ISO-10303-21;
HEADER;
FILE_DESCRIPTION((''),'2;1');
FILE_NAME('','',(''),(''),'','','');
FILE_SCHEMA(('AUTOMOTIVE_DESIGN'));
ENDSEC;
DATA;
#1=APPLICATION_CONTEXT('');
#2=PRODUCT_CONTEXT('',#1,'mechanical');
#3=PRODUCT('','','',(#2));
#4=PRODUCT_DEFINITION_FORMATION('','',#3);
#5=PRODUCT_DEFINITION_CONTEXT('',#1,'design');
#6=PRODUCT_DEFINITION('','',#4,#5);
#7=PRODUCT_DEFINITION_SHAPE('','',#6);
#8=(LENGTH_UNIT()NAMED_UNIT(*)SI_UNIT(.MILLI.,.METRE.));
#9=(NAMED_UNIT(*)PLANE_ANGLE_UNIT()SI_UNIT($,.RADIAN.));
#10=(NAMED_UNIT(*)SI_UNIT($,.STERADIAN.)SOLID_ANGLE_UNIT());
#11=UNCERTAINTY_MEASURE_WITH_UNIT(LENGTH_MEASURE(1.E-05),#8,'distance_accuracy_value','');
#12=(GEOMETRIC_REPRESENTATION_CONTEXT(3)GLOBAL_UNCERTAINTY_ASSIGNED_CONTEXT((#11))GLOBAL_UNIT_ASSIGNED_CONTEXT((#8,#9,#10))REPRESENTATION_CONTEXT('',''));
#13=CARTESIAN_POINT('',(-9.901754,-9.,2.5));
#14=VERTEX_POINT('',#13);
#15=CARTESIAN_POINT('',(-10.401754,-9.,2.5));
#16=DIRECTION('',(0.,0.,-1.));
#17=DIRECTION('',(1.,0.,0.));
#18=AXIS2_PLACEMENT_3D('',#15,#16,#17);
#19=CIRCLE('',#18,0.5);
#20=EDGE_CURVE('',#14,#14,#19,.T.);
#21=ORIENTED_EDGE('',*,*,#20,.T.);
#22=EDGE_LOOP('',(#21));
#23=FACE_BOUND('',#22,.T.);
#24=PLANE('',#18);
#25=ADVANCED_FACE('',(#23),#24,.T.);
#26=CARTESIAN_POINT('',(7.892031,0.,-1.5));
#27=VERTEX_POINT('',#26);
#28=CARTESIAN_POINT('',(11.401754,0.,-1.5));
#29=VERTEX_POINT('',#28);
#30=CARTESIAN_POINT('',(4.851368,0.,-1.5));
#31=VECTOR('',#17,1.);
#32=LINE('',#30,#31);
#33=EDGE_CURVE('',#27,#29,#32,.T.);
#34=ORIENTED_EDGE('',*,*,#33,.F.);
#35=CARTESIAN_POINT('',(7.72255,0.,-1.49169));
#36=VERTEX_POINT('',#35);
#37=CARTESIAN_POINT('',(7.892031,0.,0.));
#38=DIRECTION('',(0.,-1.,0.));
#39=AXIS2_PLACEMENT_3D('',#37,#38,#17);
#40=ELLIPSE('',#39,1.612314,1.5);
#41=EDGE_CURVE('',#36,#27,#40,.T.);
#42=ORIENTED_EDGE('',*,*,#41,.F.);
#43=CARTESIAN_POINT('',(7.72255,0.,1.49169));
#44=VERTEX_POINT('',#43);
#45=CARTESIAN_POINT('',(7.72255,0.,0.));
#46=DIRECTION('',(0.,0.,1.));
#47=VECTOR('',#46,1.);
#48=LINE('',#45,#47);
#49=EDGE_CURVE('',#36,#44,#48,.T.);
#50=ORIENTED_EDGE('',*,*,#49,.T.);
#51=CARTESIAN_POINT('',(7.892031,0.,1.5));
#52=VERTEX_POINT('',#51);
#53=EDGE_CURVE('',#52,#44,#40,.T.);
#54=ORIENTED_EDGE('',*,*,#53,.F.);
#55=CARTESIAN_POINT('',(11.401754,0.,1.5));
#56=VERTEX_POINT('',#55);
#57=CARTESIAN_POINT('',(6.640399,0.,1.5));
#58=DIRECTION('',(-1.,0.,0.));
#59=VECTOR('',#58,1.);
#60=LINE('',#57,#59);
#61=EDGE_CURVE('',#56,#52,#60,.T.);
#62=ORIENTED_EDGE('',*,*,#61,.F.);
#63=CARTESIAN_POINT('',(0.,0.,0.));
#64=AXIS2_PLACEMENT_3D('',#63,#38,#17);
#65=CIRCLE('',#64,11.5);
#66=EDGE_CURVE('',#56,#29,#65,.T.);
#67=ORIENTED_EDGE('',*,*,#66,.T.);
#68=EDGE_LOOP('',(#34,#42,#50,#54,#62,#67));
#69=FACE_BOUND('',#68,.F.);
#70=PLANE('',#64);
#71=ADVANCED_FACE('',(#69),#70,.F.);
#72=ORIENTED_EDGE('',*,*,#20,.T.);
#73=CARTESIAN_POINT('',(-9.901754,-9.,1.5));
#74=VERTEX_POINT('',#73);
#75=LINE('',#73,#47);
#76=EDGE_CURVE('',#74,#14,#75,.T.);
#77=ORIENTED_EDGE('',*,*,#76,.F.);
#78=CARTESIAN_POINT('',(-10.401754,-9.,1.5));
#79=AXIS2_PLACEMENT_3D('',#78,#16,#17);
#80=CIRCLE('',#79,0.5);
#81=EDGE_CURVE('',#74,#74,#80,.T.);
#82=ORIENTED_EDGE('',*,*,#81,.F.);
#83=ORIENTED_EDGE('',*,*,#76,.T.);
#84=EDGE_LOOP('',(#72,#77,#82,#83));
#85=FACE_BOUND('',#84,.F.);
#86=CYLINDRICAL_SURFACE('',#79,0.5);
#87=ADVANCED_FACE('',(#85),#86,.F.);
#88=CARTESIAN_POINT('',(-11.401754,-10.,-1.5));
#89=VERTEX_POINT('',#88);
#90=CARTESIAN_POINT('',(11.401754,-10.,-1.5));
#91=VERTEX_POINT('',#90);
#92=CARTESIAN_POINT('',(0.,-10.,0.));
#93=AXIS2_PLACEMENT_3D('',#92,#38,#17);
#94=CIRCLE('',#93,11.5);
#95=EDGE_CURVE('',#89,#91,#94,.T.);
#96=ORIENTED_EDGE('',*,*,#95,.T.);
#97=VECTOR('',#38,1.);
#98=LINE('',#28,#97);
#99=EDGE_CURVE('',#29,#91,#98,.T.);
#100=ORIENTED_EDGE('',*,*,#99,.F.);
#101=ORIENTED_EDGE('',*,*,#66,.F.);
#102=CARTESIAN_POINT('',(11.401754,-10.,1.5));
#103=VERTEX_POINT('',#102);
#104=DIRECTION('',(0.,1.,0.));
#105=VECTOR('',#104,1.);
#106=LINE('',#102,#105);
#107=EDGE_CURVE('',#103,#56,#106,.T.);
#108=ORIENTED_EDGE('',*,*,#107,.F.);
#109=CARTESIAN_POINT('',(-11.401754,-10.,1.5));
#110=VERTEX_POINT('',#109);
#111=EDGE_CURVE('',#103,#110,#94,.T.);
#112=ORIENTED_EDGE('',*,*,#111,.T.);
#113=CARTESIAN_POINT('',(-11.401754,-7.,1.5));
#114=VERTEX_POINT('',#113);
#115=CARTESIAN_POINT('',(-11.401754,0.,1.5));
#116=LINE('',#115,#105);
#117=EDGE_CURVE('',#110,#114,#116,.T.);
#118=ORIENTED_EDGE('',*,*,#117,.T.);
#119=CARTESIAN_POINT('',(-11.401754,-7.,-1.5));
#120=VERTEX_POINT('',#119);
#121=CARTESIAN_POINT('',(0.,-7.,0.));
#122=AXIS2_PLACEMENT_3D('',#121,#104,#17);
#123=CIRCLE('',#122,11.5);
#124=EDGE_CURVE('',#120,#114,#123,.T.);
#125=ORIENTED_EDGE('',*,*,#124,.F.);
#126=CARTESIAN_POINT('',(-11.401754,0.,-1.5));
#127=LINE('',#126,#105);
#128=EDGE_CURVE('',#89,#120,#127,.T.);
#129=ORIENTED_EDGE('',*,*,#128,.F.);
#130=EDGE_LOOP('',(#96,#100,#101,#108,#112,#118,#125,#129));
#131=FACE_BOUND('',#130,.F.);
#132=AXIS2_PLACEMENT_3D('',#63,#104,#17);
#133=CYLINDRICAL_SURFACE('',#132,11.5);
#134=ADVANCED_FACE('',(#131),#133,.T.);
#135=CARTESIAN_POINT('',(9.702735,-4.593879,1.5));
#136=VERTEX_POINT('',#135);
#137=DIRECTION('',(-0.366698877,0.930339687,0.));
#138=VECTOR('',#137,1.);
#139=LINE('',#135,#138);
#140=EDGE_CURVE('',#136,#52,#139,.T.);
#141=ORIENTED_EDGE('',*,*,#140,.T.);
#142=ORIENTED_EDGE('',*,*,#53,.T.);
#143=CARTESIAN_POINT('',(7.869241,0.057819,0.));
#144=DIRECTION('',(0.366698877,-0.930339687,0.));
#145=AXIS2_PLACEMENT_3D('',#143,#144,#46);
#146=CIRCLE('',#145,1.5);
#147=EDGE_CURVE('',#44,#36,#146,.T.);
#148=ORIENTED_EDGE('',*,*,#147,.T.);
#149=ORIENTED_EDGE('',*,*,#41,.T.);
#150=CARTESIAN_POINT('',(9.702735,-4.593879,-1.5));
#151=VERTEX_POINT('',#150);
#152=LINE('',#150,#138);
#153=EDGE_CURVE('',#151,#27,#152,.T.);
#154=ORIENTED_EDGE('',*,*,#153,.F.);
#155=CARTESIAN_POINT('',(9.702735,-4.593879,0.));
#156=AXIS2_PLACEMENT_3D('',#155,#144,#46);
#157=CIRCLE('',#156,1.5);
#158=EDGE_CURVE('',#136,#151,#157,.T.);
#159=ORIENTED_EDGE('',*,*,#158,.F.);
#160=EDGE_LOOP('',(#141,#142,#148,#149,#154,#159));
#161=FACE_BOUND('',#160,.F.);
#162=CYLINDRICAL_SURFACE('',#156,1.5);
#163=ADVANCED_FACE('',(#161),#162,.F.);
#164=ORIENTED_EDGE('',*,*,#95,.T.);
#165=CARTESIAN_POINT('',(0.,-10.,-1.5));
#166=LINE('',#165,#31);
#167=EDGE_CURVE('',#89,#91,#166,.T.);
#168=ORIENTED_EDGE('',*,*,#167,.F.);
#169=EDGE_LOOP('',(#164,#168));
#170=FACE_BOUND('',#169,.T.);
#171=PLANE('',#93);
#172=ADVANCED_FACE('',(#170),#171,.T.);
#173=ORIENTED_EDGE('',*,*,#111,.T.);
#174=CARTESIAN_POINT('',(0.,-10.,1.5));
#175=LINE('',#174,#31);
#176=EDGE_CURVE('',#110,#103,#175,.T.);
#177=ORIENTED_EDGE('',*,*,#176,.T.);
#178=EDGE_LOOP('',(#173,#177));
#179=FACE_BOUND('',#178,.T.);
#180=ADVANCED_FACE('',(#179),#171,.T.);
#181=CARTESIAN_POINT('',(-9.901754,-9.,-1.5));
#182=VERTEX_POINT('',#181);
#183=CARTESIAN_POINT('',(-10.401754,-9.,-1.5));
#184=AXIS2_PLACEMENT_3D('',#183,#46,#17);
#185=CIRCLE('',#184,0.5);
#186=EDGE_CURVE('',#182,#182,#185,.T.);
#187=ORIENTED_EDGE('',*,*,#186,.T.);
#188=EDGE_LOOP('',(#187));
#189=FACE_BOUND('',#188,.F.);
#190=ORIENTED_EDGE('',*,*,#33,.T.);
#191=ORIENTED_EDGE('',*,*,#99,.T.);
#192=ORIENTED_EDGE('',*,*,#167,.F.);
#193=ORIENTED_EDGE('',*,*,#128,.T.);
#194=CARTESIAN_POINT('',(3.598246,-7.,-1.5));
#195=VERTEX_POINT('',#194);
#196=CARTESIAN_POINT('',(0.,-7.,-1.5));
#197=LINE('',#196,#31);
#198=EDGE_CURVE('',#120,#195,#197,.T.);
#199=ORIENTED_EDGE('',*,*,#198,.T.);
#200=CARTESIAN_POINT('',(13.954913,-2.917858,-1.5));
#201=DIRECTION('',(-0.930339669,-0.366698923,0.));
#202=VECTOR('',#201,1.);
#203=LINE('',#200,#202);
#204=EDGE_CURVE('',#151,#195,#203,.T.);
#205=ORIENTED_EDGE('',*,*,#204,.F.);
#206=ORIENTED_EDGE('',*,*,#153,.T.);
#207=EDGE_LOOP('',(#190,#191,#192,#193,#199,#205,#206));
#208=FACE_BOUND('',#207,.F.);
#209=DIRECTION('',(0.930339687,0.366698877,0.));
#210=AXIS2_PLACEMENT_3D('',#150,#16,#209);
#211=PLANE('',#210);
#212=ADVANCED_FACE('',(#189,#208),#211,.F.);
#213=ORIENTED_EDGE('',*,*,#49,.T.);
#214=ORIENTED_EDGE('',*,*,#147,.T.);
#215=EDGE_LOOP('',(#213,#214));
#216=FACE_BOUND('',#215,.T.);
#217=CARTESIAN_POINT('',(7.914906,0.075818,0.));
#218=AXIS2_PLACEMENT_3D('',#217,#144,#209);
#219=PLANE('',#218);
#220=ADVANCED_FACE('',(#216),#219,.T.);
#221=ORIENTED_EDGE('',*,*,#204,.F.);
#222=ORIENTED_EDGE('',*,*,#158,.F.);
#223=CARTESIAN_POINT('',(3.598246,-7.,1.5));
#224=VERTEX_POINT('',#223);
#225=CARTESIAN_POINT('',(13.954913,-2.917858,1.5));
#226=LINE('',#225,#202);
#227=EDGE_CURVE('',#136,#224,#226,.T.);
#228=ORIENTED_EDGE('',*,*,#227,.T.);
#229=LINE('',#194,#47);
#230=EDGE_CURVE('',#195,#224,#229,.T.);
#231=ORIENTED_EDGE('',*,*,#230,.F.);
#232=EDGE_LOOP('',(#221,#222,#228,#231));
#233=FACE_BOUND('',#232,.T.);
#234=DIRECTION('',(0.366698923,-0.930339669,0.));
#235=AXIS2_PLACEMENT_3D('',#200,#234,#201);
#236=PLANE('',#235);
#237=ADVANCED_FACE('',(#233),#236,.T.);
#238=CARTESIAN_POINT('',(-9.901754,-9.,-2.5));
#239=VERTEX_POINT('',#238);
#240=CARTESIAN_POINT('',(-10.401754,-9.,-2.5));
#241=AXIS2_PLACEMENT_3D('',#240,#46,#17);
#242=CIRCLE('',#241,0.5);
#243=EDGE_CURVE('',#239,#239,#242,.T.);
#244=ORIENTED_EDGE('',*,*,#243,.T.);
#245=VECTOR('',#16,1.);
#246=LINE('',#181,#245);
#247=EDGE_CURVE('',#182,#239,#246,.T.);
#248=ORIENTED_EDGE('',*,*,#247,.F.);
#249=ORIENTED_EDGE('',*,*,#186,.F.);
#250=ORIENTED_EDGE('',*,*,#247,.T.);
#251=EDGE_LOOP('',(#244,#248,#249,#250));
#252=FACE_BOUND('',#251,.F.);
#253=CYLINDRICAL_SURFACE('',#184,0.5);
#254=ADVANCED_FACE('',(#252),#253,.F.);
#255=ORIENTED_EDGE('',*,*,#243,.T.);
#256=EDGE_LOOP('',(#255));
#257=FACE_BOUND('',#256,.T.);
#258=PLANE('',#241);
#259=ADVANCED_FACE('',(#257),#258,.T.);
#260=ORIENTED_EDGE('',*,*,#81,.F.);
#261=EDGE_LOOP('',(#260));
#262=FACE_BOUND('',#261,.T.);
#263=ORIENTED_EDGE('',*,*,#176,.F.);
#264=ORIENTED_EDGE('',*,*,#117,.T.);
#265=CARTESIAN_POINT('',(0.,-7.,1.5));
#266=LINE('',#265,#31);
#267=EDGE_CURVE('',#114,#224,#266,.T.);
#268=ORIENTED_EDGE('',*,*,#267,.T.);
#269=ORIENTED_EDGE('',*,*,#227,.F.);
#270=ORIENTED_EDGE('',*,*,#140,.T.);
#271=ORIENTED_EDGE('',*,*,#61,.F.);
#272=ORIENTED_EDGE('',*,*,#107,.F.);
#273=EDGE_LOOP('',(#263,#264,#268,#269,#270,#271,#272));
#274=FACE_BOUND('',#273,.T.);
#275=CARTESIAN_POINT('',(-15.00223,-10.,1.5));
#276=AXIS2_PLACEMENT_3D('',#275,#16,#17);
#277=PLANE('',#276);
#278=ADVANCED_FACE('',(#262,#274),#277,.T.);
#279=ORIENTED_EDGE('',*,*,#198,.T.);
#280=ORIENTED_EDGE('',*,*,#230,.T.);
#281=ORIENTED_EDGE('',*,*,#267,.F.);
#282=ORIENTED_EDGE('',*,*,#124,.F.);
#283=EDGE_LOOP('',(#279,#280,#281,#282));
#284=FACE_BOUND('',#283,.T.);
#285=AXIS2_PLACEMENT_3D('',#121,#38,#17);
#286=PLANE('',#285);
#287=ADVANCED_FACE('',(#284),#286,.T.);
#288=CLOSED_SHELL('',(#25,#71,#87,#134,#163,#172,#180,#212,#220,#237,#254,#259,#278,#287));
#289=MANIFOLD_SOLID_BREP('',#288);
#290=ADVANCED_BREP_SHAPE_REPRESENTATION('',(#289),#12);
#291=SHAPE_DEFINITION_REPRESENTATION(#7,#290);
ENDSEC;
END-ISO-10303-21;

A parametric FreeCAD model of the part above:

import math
import FreeCAD as App
import Part
import Sketcher
from FreeCAD import Vector


def add_polygon(sketch, points):
    """Adds a closed chain of lines whose ends are joined by coincident constraints."""
    first, n = sketch.GeometryCount, len(points)
    for a, b in zip(points, points[1:] + points[:1]):
        sketch.addGeometry(Part.LineSegment(App.Vector(*a, 0), App.Vector(*b, 0)), False)
    for i in range(n):
        sketch.addConstraint(Sketcher.Constraint("Coincident", first + i, 2, first + (i + 1) % n, 1))

doc = App.newDocument("Part")
body = doc.addObject("PartDesign::Body", "Body")

sketch1 = body.newObject("Sketcher::SketchObject", "Sketch")
sketch1.AttachmentSupport = (doc.getObject("XZ_Plane"), [""])
sketch1.MapMode = "FlatFace"
sketch1.addGeometry(Part.Circle(Vector(0, 0, 0), Vector(0, 0, 1), 12), False)
sketch1.addConstraint(Sketcher.Constraint("Coincident", 0, 3, -1, 1))
sketch1.addConstraint(Sketcher.Constraint("Diameter", 0, 23.0))
pad1 = body.newObject("PartDesign::Pad", "Pad")
pad1.Profile = sketch1
pad1.Length = 10

sketch2 = body.newObject("Sketcher::SketchObject", "Sketch001")
sketch2.AttachmentSupport = (doc.getObject("XZ_Plane"), [""])
sketch2.MapMode = "FlatFace"
sketch2.AttachmentOffset = App.Placement(Vector(0, 0, 10), App.Rotation())
add_polygon(sketch2, [(-15, 1.5), (-15, -1.5), (15, -1.5), (15, 1.5)])
sketch2.addConstraint(Sketcher.Constraint("Vertical", 0))
sketch2.addConstraint(Sketcher.Constraint("Horizontal", 1))
sketch2.addConstraint(Sketcher.Constraint("Vertical", 2))
sketch2.addConstraint(Sketcher.Constraint("Horizontal", 3))
sketch2.addConstraint(Sketcher.Constraint("Symmetric", 0, 2, 2, 2, -1, 1))
sketch2.addConstraint(Sketcher.Constraint("DistanceY", 0, 2, 0, 1, 3.0))
sketch2.addConstraint(Sketcher.Constraint("DistanceX", 1, 1, 1, 2, 30.00446))
pocket1 = body.newObject("PartDesign::Pocket", "Pocket")
pocket1.Profile = sketch2
pocket1.Length = 3

sketch3 = body.newObject("Sketcher::SketchObject", "Sketch002")
sketch3.AttachmentSupport = (doc.getObject("XY_Plane"), [""])
sketch3.MapMode = "FlatFace"
sketch3.AttachmentOffset = App.Placement(Vector(0, 0, 1.5), App.Rotation())
sketch3.addGeometry(Part.Circle(Vector(-10.4, -9, 0), Vector(0, 0, 1), 0.5), False)
sketch3.addConstraint(Sketcher.Constraint("Diameter", 0, 1.0))
sketch3.addConstraint(Sketcher.Constraint("DistanceY", 0, 3, -1, 1, 9.0))
sketch3.addConstraint(Sketcher.Constraint("DistanceX", 0, 3, -1, 1, 10.401754))
pocket2 = body.newObject("PartDesign::Pocket", "Pocket001")
pocket2.Profile = sketch3
pocket2.Length = 1
pocket2.Reversed = True

sketch4 = body.newObject("Sketcher::SketchObject", "Sketch003")
sketch4.AttachmentSupport = (doc.getObject("XY_Plane"), [""])
sketch4.MapMode = "FlatFace"
sketch4.AttachmentOffset = App.Placement(Vector(0, 0, -1.5), App.Rotation())
sketch4.addGeometry(Part.Circle(Vector(-10.4, -9, 0), Vector(0, 0, 1), 0.5), False)
sketch4.addConstraint(Sketcher.Constraint("Diameter", 0, 1.0))
sketch4.addConstraint(Sketcher.Constraint("DistanceY", 0, 3, -1, 1, 9.0))
sketch4.addConstraint(Sketcher.Constraint("DistanceX", 0, 3, -1, 1, 10.401754))
pocket3 = body.newObject("PartDesign::Pocket", "Pocket002")
pocket3.Profile = sketch4
pocket3.Length = 1

sketch5 = body.newObject("Sketcher::SketchObject", "Sketch004")
sketch5.AttachmentSupport = (doc.getObject("XY_Plane"), [""])
sketch5.MapMode = "FlatFace"
sketch5.AttachmentOffset = App.Placement(Vector(0, 0, -1.5), App.Rotation())
add_polygon(sketch5, [(14, -2.9), (3.6, -7), (11.4, -7), (14.4, -7.3)])
sketch5.addConstraint(Sketcher.Constraint("Horizontal", 1))
sketch5.addConstraint(Sketcher.Constraint("DistanceY", 0, 2, -1, 1, 7.0))
sketch5.addConstraint(Sketcher.Constraint("DistanceX", 1, 1, 1, 2, 7.803508))
sketch5.addConstraint(Sketcher.Constraint("DistanceY", 2, 2, -1, 1, 7.2972))
sketch5.addConstraint(Sketcher.Constraint("DistanceX", 3, 2, 2, 2, 0.396901))
sketch5.addConstraint(Sketcher.Constraint("Distance", 3, 4.397291))
sketch5.addConstraint(Sketcher.Constraint("DistanceX", 1, 2, 2, 2, 2.95006))
sketch5.addConstraint(Sketcher.Constraint("DistanceX", -1, 1, 0, 2, 3.598246))
pocket4 = body.newObject("PartDesign::Pocket", "Pocket003")
pocket4.Profile = sketch5
pocket4.Length = 3
pocket4.Reversed = True

sketch6 = body.newObject("Sketcher::SketchObject", "Sketch005")
sketch6.Placement = App.Placement(Vector(2.871931, -7.286281, 0), App.Rotation(Vector(0.930339687, 0.366698877, 0), Vector(0, 0, 1), Vector(0.366698877, -0.930339687, 0), "ZXY"))
sketch6.addGeometry(Part.ArcOfCircle(Part.Circle(Vector(7.3, 0, 0), Vector(0, 0, 1), 1.5), math.radians(90), math.radians(270)), False)
sketch6.addGeometry(Part.LineSegment(Vector(7.3, -1.5, 0), Vector(11.2, -1.5, 0)), False)
sketch6.addGeometry(Part.LineSegment(Vector(11.2, -1.5, 0), Vector(11.2, 1.5, 0)), False)
sketch6.addGeometry(Part.LineSegment(Vector(11.2, 1.5, 0), Vector(7.3, 1.5, 0)), False)
sketch6.addConstraint(Sketcher.Constraint("Tangent", 0, 2, 1, 1))
sketch6.addConstraint(Sketcher.Constraint("Coincident", 1, 2, 2, 1))
sketch6.addConstraint(Sketcher.Constraint("Coincident", 2, 2, 3, 1))
sketch6.addConstraint(Sketcher.Constraint("Tangent", 3, 2, 0, 1))
sketch6.addConstraint(Sketcher.Constraint("Horizontal", 1))
sketch6.addConstraint(Sketcher.Constraint("Vertical", 2))
sketch6.addConstraint(Sketcher.Constraint("Horizontal", 3))
sketch6.addConstraint(Sketcher.Constraint("PointOnObject", 0, 3, -1))
sketch6.addConstraint(Sketcher.Constraint("Radius", 0, 1.5))
sketch6.addConstraint(Sketcher.Constraint("DistanceX", 1, 1, 1, 2, 3.845974))
sketch6.addConstraint(Sketcher.Constraint("DistanceX", -1, 1, 0, 3, 7.342269))
pocket5 = body.newObject("PartDesign::Pocket", "Pocket004")
pocket5.Profile = sketch6
pocket5.Length = 5

doc.recompute()
